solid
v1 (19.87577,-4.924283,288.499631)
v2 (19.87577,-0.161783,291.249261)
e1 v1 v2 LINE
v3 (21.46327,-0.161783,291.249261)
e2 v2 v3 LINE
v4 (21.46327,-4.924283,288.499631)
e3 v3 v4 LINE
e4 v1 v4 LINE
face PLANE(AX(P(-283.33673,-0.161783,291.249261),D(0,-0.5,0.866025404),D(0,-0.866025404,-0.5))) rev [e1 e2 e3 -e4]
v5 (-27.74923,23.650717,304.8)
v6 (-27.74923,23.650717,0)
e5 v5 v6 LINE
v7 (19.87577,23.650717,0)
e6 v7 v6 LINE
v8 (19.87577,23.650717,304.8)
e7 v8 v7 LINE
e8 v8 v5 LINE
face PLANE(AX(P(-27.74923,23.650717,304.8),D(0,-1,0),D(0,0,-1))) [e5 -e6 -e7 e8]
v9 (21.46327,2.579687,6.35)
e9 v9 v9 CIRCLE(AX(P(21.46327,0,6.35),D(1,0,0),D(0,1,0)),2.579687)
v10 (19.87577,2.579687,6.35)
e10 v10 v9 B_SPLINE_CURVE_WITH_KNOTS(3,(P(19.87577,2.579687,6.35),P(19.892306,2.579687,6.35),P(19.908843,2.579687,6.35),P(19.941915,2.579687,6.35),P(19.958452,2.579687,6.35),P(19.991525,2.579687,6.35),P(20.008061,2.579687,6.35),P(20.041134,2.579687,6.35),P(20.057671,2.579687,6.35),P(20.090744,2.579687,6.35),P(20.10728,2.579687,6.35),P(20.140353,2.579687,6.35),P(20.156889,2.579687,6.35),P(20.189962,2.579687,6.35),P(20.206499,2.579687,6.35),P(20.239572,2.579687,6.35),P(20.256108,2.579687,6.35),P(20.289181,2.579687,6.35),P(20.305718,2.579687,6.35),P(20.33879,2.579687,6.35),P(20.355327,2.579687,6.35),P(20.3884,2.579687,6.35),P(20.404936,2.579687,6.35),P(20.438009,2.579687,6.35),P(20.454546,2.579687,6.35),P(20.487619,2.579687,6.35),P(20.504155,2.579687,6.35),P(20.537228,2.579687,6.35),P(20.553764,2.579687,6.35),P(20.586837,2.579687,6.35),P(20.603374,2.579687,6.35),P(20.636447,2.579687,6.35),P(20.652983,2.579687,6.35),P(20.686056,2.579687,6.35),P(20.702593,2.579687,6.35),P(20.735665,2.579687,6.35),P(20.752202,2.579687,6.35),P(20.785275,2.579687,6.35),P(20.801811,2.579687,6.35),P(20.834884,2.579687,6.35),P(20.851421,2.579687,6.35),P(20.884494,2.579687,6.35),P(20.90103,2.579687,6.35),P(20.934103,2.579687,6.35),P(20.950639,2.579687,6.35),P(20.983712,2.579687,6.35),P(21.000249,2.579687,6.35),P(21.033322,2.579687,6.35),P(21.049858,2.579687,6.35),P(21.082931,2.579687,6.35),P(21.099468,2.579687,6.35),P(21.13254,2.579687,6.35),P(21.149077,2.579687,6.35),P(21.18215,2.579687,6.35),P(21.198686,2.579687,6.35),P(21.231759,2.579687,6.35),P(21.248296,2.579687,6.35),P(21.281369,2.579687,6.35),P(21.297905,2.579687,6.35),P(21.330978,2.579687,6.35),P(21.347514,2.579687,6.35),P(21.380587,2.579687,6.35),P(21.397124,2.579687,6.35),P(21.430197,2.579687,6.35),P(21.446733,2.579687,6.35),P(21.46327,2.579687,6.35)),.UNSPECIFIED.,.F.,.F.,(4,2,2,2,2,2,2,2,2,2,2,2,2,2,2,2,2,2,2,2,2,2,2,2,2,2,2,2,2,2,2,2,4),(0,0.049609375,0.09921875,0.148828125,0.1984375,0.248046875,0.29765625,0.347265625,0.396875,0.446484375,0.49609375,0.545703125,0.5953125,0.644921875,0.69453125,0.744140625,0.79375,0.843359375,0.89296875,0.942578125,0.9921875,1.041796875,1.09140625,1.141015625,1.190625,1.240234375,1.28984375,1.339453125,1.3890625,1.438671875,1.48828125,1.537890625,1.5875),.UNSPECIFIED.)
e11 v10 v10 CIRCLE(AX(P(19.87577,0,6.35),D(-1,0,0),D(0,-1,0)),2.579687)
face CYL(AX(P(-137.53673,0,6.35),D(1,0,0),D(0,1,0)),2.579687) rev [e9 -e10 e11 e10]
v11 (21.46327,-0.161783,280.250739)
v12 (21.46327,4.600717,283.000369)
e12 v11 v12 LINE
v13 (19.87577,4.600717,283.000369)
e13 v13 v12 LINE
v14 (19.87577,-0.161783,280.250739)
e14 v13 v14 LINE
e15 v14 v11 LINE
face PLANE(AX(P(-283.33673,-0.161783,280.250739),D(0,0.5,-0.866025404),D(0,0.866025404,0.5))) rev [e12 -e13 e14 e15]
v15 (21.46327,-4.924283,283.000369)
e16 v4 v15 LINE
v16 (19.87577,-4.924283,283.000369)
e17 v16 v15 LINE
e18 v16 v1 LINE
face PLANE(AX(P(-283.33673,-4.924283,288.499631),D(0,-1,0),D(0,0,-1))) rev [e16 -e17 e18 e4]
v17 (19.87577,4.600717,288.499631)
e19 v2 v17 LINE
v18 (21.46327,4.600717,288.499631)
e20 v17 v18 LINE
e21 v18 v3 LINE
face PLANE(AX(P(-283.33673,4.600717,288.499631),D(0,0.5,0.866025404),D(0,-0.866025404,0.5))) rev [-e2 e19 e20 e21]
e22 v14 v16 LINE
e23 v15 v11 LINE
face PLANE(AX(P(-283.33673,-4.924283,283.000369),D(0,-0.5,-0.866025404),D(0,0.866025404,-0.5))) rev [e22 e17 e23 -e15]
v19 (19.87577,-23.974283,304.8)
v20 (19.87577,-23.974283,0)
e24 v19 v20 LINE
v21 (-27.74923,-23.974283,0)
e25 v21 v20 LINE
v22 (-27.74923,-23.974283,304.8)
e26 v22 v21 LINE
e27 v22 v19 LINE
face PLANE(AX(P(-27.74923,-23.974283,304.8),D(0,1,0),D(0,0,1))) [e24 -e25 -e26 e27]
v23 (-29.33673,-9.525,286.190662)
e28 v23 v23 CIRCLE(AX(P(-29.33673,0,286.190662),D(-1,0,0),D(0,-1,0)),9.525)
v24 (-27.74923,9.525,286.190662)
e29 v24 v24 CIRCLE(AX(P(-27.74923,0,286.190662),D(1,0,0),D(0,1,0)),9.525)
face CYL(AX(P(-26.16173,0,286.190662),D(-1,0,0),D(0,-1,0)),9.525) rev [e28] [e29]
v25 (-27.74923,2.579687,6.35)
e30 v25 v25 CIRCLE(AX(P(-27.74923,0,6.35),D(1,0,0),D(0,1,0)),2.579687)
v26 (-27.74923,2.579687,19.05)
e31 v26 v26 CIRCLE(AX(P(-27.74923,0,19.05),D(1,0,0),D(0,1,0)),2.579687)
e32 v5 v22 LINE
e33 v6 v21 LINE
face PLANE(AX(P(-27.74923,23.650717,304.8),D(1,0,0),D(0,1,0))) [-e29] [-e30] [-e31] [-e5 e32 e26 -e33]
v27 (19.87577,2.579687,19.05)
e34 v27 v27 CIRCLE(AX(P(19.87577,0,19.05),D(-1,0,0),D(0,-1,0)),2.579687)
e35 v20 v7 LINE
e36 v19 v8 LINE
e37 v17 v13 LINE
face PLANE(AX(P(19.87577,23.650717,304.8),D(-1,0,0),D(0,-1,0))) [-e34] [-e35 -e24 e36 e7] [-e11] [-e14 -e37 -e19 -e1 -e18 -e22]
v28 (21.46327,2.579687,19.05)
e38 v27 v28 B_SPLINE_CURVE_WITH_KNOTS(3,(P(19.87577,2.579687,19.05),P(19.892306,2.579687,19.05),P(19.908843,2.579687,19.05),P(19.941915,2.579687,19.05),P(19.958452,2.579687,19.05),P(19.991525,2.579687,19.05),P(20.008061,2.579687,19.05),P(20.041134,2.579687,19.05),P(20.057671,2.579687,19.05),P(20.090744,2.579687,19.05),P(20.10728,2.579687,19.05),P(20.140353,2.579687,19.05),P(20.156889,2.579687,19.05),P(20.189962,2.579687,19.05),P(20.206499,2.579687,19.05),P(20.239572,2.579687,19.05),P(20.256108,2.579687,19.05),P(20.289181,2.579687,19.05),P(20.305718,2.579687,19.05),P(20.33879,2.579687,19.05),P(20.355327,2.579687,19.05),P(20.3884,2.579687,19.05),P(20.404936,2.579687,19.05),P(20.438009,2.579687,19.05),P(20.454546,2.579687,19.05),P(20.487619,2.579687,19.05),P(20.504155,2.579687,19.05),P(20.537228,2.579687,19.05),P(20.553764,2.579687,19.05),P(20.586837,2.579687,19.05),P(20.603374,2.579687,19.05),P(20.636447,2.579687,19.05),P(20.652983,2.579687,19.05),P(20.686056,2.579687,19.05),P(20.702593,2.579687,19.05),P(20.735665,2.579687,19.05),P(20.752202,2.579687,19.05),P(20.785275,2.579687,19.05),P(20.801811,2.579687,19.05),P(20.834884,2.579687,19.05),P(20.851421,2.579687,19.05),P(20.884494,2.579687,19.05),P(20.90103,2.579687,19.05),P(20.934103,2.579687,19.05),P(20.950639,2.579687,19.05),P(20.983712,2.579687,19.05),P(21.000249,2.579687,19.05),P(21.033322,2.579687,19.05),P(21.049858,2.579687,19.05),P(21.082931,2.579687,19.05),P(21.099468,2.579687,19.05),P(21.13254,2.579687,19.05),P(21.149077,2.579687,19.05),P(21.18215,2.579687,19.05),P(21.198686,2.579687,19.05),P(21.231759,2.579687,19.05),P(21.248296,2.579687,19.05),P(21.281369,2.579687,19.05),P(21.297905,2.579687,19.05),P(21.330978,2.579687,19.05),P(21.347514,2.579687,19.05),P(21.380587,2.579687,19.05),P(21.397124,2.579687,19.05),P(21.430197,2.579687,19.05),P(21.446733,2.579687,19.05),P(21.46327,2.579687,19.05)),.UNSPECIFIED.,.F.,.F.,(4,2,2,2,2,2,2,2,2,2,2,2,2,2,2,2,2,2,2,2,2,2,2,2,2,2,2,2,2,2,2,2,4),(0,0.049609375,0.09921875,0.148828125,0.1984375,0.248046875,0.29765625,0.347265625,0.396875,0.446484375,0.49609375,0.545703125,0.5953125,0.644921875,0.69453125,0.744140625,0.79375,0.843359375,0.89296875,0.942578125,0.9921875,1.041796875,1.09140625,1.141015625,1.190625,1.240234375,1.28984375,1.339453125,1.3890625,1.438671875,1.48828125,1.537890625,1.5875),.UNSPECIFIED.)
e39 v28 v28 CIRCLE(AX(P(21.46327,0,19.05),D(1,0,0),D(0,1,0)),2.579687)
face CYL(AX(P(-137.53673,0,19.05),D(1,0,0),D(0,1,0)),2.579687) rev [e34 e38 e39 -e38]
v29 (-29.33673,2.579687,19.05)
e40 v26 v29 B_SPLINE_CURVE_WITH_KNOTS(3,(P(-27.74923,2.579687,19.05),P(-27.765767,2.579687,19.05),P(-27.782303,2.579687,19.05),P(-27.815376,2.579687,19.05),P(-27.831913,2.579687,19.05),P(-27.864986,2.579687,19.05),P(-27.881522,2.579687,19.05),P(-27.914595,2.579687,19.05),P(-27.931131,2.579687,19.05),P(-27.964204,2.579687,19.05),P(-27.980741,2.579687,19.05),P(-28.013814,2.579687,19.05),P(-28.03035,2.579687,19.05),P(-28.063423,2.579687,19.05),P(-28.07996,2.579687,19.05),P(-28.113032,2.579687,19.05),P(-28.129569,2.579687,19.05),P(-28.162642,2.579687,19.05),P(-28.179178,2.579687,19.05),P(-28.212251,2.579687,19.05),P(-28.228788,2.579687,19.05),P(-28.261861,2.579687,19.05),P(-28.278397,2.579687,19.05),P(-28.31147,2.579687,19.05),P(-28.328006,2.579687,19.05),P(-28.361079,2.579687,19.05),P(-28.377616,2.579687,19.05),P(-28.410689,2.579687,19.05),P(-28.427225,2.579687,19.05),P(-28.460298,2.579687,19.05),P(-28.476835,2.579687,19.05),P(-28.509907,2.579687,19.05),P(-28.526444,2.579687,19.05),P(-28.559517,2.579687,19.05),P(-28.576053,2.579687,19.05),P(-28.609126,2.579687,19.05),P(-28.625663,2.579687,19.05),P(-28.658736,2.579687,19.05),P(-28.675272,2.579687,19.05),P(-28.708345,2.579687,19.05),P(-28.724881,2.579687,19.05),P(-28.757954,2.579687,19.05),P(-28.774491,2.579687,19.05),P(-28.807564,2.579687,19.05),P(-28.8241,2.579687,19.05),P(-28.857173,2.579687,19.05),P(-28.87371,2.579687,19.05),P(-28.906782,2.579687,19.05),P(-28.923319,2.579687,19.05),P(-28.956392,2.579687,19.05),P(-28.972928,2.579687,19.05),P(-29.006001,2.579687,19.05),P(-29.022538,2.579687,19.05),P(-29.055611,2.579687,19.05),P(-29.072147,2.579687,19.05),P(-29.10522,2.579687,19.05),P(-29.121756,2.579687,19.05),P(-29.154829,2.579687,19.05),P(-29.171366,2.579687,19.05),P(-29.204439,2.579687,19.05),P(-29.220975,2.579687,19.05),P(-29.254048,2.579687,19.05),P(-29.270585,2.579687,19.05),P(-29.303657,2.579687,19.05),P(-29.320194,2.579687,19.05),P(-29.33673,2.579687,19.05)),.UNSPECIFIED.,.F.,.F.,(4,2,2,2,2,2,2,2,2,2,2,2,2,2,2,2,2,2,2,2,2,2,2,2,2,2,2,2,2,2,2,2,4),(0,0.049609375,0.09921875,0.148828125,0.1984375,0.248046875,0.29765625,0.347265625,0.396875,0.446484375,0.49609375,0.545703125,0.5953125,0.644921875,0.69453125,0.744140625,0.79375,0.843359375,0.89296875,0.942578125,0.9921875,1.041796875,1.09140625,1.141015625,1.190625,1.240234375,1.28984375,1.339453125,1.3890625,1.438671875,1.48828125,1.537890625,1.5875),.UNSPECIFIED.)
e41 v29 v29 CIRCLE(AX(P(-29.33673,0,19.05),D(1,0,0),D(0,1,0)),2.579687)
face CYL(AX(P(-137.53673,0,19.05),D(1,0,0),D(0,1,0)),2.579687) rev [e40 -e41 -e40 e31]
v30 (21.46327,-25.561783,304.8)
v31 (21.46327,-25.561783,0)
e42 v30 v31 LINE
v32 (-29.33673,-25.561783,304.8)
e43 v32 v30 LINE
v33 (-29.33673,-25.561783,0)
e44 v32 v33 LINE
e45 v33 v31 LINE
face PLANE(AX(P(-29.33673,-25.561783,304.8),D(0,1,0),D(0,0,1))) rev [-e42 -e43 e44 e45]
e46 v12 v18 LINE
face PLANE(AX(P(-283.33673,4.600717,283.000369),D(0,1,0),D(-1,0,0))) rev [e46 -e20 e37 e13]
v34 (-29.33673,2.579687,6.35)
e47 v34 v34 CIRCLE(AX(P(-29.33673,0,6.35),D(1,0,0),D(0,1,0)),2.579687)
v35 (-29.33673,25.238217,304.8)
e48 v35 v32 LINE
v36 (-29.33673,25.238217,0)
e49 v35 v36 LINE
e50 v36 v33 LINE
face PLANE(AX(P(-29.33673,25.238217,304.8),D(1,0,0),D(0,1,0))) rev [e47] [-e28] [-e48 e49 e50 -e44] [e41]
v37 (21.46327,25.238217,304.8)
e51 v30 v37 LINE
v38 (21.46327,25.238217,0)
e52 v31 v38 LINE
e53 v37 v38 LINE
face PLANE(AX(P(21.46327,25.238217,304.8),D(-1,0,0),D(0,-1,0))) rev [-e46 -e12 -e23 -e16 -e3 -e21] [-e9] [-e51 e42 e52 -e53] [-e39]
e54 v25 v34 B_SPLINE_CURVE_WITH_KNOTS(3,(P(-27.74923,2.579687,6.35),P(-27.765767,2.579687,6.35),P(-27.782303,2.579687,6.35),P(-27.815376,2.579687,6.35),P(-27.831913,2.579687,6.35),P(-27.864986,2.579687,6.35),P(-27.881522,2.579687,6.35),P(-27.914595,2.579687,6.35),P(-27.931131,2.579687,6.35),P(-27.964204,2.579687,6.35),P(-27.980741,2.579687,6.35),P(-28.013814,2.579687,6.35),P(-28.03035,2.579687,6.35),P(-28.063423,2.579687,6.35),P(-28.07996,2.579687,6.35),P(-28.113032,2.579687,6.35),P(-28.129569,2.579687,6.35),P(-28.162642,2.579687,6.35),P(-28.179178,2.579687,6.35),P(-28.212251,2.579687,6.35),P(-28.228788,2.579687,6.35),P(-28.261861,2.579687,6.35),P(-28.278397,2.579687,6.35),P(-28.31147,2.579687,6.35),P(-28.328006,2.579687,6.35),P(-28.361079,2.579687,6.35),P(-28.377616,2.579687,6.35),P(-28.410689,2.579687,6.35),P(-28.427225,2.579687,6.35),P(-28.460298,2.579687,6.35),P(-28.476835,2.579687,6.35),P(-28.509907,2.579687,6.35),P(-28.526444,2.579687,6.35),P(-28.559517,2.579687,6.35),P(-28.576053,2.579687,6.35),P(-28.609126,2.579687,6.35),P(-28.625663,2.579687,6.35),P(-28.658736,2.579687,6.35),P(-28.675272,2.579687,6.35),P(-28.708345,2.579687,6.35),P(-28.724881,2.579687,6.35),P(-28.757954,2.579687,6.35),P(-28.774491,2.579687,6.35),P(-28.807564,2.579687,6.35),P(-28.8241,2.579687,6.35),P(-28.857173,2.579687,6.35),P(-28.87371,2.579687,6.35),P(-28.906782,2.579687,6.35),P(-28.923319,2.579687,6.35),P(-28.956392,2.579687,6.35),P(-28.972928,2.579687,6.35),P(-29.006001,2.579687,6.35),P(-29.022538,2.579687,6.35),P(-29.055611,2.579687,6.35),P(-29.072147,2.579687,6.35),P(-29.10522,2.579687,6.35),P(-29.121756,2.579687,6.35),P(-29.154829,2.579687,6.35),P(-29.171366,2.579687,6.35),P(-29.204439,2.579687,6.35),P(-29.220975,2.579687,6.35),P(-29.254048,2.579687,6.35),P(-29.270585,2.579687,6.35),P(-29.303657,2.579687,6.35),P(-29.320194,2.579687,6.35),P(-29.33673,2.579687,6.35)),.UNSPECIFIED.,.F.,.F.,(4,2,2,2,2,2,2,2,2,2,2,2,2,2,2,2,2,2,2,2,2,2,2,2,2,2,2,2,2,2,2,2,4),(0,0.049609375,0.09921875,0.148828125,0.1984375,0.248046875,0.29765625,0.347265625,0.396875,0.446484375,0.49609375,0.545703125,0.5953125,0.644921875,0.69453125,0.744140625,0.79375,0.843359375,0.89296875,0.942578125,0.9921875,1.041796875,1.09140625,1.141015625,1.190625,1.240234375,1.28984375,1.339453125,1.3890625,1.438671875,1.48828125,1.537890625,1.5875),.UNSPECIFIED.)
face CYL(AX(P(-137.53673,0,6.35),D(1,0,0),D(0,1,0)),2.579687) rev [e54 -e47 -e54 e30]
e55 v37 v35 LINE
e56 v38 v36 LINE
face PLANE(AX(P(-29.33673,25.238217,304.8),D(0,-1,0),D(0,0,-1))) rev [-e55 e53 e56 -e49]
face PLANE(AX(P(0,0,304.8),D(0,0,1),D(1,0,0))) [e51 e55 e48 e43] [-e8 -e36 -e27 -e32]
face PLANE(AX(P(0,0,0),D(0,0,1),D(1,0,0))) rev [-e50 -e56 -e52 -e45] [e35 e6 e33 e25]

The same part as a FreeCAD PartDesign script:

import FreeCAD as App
import Part
import Sketcher

V = App.Vector
Q = App.Units.Quantity

doc = App.newDocument("Part")
body = doc.addObject("PartDesign::Body", "Body")

# Sketch on XY plane
sketch1 = doc.addObject("Sketcher::SketchObject", "Sketch")
body.addObject(sketch1)
sketch1.AttachmentSupport = (doc.XY_Plane, [""])
sketch1.MapMode = "FlatFace"
sketch1.addGeometry(Part.LineSegment(V(-29, 25, 0), V(-29, -26, 0)), False)
sketch1.addGeometry(Part.LineSegment(V(-29, -26, 0), V(21, -26, 0)), False)
sketch1.addGeometry(Part.LineSegment(V(21, -26, 0), V(21, 25, 0)), False)
sketch1.addGeometry(Part.LineSegment(V(21, 25, 0), V(-29, 25, 0)), False)
sketch1.addGeometry(Part.LineSegment(V(20, -24, 0), V(-28, -24, 0)), False)
sketch1.addGeometry(Part.LineSegment(V(-28, -24, 0), V(-28, 24, 0)), False)
sketch1.addGeometry(Part.LineSegment(V(-28, 24, 0), V(20, 24, 0)), False)
sketch1.addGeometry(Part.LineSegment(V(20, 24, 0), V(20, -24, 0)), False)
sketch1.addConstraint(Sketcher.Constraint("Coincident", 0, 2, 1, 1))
sketch1.addConstraint(Sketcher.Constraint("Coincident", 1, 2, 2, 1))
sketch1.addConstraint(Sketcher.Constraint("Coincident", 2, 2, 3, 1))
sketch1.addConstraint(Sketcher.Constraint("Coincident", 3, 2, 0, 1))
sketch1.addConstraint(Sketcher.Constraint("Coincident", 4, 2, 5, 1))
sketch1.addConstraint(Sketcher.Constraint("Coincident", 5, 2, 6, 1))
sketch1.addConstraint(Sketcher.Constraint("Coincident", 6, 2, 7, 1))
sketch1.addConstraint(Sketcher.Constraint("Coincident", 7, 2, 4, 1))
sketch1.addConstraint(Sketcher.Constraint("Vertical", 0))
sketch1.addConstraint(Sketcher.Constraint("Horizontal", 1))
sketch1.addConstraint(Sketcher.Constraint("Vertical", 2))
sketch1.addConstraint(Sketcher.Constraint("Horizontal", 3))
sketch1.addConstraint(Sketcher.Constraint("Horizontal", 4))
sketch1.addConstraint(Sketcher.Constraint("Vertical", 5))
sketch1.addConstraint(Sketcher.Constraint("Horizontal", 6))
sketch1.addConstraint(Sketcher.Constraint("Vertical", 7))
sketch1.addConstraint(Sketcher.Constraint("Equal", 3, 0))
sketch1.addConstraint(Sketcher.Constraint("Equal", 6, 5))
sketch1.addConstraint(Sketcher.Constraint("DistanceX", 1, 1, 1, 2, Q("2 in")))
sketch1.addConstraint(Sketcher.Constraint("DistanceX", 4, 2, 4, 1, Q("1.875 in")))
sketch1.addConstraint(Sketcher.Constraint("DistanceX", 0, 2, 4, 2, Q("0.0625 in")))
sketch1.addConstraint(Sketcher.Constraint("DistanceY", 0, 2, 4, 2, Q("0.0625 in")))
sketch1.addConstraint(Sketcher.Constraint("DistanceX", 0, 2, -1, 1, Q("29.33673 mm")))
sketch1.addConstraint(Sketcher.Constraint("DistanceY", 0, 2, -1, 1, Q("25.561783 mm")))
pad1 = doc.addObject("PartDesign::Pad", "Pad")
body.addObject(pad1)
pad1.Profile = sketch1
pad1.Length = Q("12 in")

# Sketch on YZ plane
sketch2 = doc.addObject("Sketcher::SketchObject", "Sketch001")
body.addObject(sketch2)
sketch2.AttachmentSupport = (doc.YZ_Plane, [""])
sketch2.MapMode = "FlatFace"
sketch2.AttachmentOffset = App.Placement(V(0, 0, 21.46327), App.Rotation())
sketch2.addGeometry(Part.LineSegment(V(0, 280, 0), V(5, 283, 0)), False)
sketch2.addGeometry(Part.LineSegment(V(5, 283, 0), V(5, 288, 0)), False)
sketch2.addGeometry(Part.LineSegment(V(5, 288, 0), V(0, 291, 0)), False)
sketch2.addGeometry(Part.LineSegment(V(0, 291, 0), V(-5, 288, 0)), False)
sketch2.addGeometry(Part.LineSegment(V(-5, 288, 0), V(-5, 283, 0)), False)
sketch2.addGeometry(Part.LineSegment(V(-5, 283, 0), V(0, 280, 0)), False)
sketch2.addConstraint(Sketcher.Constraint("Coincident", 0, 2, 1, 1))
sketch2.addConstraint(Sketcher.Constraint("Coincident", 1, 2, 2, 1))
sketch2.addConstraint(Sketcher.Constraint("Coincident", 2, 2, 3, 1))
sketch2.addConstraint(Sketcher.Constraint("Coincident", 3, 2, 4, 1))
sketch2.addConstraint(Sketcher.Constraint("Coincident", 4, 2, 5, 1))
sketch2.addConstraint(Sketcher.Constraint("Coincident", 5, 2, 0, 1))
sketch2.addConstraint(Sketcher.Constraint("Vertical", 1))
sketch2.addConstraint(Sketcher.Constraint("Vertical", 4))
sketch2.addConstraint(Sketcher.Constraint("Parallel", 0, 3))
sketch2.addConstraint(Sketcher.Constraint("Parallel", 2, 5))
sketch2.addConstraint(Sketcher.Constraint("Horizontal", 1, 2, 3, 2))
sketch2.addConstraint(Sketcher.Constraint("Horizontal", 0, 2, 4, 2))
sketch2.addConstraint(Sketcher.Constraint("Vertical", 2, 2, 5, 2))
sketch2.addConstraint(Sketcher.Constraint("Angle", 0, Q("30 deg")))
sketch2.addConstraint(Sketcher.Constraint("DistanceX", 2, 2, 1, 2, Q("0.1875 in")))
sketch2.addConstraint(Sketcher.Constraint("DistanceY", 1, 1, 1, 2, Q("5.499261 mm")))
sketch2.addConstraint(Sketcher.Constraint("DistanceY", -1, 1, 0, 2, Q("283.000369 mm")))
sketch2.addConstraint(Sketcher.Constraint("DistanceX", -1, 1, 0, 2, Q("4.600717 mm")))
pocket1 = doc.addObject("PartDesign::Pocket", "Pocket")
body.addObject(pocket1)
pocket1.Profile = sketch2
pocket1.Length = Q("12 in")

# Sketch on YZ plane
sketch3 = doc.addObject("Sketcher::SketchObject", "Sketch002")
body.addObject(sketch3)
sketch3.AttachmentSupport = (doc.YZ_Plane, [""])
sketch3.MapMode = "FlatFace"
sketch3.AttachmentOffset = App.Placement(V(0, 0, 21.46327), App.Rotation())
sketch3.addGeometry(Part.Circle(V(0, 6.3, 0), V(0, 0, 1), 2.6), False)
sketch3.addGeometry(Part.Circle(V(0, 19.1, 0), V(0, 0, 1), 2.6), False)
sketch3.addConstraint(Sketcher.Constraint("Equal", 0, 1))
sketch3.addConstraint(Sketcher.Constraint("PointOnObject", 0, 3, -2))
sketch3.addConstraint(Sketcher.Constraint("PointOnObject", 1, 3, -2))
sketch3.addConstraint(Sketcher.Constraint("Diameter", 0, Q("0.203125 in")))
sketch3.addConstraint(Sketcher.Constraint("DistanceY", 0, 3, 1, 3, Q("0.5 in")))
sketch3.addConstraint(Sketcher.Constraint("DistanceY", -1, 1, 0, 3, Q("0.25 in")))
pocket2 = doc.addObject("PartDesign::Pocket", "Pocket001")
body.addObject(pocket2)
pocket2.Profile = sketch3
pocket2.Length = 159

# Sketch on YZ plane
sketch4 = doc.addObject("Sketcher::SketchObject", "Sketch003")
body.addObject(sketch4)
sketch4.AttachmentSupport = (doc.YZ_Plane, [""])
sketch4.MapMode = "FlatFace"
sketch4.AttachmentOffset = App.Placement(V(0, 0, -29.33673), App.Rotation())
sketch4.addGeometry(Part.Circle(V(0, 286, 0), V(0, 0, 1), 10), False)
sketch4.addConstraint(Sketcher.Constraint("PointOnObject", 0, 3, -2))
sketch4.addConstraint(Sketcher.Constraint("Diameter", 0, Q("0.75 in")))
sketch4.addConstraint(Sketcher.Constraint("DistanceY", -1, 1, 0, 3, Q("286.190662 mm")))
pocket3 = doc.addObject("PartDesign::Pocket", "Pocket002")
body.addObject(pocket3)
pocket3.Profile = sketch4
pocket3.Length = Q("0.125 in")
pocket3.Reversed = True

doc.recompute()
